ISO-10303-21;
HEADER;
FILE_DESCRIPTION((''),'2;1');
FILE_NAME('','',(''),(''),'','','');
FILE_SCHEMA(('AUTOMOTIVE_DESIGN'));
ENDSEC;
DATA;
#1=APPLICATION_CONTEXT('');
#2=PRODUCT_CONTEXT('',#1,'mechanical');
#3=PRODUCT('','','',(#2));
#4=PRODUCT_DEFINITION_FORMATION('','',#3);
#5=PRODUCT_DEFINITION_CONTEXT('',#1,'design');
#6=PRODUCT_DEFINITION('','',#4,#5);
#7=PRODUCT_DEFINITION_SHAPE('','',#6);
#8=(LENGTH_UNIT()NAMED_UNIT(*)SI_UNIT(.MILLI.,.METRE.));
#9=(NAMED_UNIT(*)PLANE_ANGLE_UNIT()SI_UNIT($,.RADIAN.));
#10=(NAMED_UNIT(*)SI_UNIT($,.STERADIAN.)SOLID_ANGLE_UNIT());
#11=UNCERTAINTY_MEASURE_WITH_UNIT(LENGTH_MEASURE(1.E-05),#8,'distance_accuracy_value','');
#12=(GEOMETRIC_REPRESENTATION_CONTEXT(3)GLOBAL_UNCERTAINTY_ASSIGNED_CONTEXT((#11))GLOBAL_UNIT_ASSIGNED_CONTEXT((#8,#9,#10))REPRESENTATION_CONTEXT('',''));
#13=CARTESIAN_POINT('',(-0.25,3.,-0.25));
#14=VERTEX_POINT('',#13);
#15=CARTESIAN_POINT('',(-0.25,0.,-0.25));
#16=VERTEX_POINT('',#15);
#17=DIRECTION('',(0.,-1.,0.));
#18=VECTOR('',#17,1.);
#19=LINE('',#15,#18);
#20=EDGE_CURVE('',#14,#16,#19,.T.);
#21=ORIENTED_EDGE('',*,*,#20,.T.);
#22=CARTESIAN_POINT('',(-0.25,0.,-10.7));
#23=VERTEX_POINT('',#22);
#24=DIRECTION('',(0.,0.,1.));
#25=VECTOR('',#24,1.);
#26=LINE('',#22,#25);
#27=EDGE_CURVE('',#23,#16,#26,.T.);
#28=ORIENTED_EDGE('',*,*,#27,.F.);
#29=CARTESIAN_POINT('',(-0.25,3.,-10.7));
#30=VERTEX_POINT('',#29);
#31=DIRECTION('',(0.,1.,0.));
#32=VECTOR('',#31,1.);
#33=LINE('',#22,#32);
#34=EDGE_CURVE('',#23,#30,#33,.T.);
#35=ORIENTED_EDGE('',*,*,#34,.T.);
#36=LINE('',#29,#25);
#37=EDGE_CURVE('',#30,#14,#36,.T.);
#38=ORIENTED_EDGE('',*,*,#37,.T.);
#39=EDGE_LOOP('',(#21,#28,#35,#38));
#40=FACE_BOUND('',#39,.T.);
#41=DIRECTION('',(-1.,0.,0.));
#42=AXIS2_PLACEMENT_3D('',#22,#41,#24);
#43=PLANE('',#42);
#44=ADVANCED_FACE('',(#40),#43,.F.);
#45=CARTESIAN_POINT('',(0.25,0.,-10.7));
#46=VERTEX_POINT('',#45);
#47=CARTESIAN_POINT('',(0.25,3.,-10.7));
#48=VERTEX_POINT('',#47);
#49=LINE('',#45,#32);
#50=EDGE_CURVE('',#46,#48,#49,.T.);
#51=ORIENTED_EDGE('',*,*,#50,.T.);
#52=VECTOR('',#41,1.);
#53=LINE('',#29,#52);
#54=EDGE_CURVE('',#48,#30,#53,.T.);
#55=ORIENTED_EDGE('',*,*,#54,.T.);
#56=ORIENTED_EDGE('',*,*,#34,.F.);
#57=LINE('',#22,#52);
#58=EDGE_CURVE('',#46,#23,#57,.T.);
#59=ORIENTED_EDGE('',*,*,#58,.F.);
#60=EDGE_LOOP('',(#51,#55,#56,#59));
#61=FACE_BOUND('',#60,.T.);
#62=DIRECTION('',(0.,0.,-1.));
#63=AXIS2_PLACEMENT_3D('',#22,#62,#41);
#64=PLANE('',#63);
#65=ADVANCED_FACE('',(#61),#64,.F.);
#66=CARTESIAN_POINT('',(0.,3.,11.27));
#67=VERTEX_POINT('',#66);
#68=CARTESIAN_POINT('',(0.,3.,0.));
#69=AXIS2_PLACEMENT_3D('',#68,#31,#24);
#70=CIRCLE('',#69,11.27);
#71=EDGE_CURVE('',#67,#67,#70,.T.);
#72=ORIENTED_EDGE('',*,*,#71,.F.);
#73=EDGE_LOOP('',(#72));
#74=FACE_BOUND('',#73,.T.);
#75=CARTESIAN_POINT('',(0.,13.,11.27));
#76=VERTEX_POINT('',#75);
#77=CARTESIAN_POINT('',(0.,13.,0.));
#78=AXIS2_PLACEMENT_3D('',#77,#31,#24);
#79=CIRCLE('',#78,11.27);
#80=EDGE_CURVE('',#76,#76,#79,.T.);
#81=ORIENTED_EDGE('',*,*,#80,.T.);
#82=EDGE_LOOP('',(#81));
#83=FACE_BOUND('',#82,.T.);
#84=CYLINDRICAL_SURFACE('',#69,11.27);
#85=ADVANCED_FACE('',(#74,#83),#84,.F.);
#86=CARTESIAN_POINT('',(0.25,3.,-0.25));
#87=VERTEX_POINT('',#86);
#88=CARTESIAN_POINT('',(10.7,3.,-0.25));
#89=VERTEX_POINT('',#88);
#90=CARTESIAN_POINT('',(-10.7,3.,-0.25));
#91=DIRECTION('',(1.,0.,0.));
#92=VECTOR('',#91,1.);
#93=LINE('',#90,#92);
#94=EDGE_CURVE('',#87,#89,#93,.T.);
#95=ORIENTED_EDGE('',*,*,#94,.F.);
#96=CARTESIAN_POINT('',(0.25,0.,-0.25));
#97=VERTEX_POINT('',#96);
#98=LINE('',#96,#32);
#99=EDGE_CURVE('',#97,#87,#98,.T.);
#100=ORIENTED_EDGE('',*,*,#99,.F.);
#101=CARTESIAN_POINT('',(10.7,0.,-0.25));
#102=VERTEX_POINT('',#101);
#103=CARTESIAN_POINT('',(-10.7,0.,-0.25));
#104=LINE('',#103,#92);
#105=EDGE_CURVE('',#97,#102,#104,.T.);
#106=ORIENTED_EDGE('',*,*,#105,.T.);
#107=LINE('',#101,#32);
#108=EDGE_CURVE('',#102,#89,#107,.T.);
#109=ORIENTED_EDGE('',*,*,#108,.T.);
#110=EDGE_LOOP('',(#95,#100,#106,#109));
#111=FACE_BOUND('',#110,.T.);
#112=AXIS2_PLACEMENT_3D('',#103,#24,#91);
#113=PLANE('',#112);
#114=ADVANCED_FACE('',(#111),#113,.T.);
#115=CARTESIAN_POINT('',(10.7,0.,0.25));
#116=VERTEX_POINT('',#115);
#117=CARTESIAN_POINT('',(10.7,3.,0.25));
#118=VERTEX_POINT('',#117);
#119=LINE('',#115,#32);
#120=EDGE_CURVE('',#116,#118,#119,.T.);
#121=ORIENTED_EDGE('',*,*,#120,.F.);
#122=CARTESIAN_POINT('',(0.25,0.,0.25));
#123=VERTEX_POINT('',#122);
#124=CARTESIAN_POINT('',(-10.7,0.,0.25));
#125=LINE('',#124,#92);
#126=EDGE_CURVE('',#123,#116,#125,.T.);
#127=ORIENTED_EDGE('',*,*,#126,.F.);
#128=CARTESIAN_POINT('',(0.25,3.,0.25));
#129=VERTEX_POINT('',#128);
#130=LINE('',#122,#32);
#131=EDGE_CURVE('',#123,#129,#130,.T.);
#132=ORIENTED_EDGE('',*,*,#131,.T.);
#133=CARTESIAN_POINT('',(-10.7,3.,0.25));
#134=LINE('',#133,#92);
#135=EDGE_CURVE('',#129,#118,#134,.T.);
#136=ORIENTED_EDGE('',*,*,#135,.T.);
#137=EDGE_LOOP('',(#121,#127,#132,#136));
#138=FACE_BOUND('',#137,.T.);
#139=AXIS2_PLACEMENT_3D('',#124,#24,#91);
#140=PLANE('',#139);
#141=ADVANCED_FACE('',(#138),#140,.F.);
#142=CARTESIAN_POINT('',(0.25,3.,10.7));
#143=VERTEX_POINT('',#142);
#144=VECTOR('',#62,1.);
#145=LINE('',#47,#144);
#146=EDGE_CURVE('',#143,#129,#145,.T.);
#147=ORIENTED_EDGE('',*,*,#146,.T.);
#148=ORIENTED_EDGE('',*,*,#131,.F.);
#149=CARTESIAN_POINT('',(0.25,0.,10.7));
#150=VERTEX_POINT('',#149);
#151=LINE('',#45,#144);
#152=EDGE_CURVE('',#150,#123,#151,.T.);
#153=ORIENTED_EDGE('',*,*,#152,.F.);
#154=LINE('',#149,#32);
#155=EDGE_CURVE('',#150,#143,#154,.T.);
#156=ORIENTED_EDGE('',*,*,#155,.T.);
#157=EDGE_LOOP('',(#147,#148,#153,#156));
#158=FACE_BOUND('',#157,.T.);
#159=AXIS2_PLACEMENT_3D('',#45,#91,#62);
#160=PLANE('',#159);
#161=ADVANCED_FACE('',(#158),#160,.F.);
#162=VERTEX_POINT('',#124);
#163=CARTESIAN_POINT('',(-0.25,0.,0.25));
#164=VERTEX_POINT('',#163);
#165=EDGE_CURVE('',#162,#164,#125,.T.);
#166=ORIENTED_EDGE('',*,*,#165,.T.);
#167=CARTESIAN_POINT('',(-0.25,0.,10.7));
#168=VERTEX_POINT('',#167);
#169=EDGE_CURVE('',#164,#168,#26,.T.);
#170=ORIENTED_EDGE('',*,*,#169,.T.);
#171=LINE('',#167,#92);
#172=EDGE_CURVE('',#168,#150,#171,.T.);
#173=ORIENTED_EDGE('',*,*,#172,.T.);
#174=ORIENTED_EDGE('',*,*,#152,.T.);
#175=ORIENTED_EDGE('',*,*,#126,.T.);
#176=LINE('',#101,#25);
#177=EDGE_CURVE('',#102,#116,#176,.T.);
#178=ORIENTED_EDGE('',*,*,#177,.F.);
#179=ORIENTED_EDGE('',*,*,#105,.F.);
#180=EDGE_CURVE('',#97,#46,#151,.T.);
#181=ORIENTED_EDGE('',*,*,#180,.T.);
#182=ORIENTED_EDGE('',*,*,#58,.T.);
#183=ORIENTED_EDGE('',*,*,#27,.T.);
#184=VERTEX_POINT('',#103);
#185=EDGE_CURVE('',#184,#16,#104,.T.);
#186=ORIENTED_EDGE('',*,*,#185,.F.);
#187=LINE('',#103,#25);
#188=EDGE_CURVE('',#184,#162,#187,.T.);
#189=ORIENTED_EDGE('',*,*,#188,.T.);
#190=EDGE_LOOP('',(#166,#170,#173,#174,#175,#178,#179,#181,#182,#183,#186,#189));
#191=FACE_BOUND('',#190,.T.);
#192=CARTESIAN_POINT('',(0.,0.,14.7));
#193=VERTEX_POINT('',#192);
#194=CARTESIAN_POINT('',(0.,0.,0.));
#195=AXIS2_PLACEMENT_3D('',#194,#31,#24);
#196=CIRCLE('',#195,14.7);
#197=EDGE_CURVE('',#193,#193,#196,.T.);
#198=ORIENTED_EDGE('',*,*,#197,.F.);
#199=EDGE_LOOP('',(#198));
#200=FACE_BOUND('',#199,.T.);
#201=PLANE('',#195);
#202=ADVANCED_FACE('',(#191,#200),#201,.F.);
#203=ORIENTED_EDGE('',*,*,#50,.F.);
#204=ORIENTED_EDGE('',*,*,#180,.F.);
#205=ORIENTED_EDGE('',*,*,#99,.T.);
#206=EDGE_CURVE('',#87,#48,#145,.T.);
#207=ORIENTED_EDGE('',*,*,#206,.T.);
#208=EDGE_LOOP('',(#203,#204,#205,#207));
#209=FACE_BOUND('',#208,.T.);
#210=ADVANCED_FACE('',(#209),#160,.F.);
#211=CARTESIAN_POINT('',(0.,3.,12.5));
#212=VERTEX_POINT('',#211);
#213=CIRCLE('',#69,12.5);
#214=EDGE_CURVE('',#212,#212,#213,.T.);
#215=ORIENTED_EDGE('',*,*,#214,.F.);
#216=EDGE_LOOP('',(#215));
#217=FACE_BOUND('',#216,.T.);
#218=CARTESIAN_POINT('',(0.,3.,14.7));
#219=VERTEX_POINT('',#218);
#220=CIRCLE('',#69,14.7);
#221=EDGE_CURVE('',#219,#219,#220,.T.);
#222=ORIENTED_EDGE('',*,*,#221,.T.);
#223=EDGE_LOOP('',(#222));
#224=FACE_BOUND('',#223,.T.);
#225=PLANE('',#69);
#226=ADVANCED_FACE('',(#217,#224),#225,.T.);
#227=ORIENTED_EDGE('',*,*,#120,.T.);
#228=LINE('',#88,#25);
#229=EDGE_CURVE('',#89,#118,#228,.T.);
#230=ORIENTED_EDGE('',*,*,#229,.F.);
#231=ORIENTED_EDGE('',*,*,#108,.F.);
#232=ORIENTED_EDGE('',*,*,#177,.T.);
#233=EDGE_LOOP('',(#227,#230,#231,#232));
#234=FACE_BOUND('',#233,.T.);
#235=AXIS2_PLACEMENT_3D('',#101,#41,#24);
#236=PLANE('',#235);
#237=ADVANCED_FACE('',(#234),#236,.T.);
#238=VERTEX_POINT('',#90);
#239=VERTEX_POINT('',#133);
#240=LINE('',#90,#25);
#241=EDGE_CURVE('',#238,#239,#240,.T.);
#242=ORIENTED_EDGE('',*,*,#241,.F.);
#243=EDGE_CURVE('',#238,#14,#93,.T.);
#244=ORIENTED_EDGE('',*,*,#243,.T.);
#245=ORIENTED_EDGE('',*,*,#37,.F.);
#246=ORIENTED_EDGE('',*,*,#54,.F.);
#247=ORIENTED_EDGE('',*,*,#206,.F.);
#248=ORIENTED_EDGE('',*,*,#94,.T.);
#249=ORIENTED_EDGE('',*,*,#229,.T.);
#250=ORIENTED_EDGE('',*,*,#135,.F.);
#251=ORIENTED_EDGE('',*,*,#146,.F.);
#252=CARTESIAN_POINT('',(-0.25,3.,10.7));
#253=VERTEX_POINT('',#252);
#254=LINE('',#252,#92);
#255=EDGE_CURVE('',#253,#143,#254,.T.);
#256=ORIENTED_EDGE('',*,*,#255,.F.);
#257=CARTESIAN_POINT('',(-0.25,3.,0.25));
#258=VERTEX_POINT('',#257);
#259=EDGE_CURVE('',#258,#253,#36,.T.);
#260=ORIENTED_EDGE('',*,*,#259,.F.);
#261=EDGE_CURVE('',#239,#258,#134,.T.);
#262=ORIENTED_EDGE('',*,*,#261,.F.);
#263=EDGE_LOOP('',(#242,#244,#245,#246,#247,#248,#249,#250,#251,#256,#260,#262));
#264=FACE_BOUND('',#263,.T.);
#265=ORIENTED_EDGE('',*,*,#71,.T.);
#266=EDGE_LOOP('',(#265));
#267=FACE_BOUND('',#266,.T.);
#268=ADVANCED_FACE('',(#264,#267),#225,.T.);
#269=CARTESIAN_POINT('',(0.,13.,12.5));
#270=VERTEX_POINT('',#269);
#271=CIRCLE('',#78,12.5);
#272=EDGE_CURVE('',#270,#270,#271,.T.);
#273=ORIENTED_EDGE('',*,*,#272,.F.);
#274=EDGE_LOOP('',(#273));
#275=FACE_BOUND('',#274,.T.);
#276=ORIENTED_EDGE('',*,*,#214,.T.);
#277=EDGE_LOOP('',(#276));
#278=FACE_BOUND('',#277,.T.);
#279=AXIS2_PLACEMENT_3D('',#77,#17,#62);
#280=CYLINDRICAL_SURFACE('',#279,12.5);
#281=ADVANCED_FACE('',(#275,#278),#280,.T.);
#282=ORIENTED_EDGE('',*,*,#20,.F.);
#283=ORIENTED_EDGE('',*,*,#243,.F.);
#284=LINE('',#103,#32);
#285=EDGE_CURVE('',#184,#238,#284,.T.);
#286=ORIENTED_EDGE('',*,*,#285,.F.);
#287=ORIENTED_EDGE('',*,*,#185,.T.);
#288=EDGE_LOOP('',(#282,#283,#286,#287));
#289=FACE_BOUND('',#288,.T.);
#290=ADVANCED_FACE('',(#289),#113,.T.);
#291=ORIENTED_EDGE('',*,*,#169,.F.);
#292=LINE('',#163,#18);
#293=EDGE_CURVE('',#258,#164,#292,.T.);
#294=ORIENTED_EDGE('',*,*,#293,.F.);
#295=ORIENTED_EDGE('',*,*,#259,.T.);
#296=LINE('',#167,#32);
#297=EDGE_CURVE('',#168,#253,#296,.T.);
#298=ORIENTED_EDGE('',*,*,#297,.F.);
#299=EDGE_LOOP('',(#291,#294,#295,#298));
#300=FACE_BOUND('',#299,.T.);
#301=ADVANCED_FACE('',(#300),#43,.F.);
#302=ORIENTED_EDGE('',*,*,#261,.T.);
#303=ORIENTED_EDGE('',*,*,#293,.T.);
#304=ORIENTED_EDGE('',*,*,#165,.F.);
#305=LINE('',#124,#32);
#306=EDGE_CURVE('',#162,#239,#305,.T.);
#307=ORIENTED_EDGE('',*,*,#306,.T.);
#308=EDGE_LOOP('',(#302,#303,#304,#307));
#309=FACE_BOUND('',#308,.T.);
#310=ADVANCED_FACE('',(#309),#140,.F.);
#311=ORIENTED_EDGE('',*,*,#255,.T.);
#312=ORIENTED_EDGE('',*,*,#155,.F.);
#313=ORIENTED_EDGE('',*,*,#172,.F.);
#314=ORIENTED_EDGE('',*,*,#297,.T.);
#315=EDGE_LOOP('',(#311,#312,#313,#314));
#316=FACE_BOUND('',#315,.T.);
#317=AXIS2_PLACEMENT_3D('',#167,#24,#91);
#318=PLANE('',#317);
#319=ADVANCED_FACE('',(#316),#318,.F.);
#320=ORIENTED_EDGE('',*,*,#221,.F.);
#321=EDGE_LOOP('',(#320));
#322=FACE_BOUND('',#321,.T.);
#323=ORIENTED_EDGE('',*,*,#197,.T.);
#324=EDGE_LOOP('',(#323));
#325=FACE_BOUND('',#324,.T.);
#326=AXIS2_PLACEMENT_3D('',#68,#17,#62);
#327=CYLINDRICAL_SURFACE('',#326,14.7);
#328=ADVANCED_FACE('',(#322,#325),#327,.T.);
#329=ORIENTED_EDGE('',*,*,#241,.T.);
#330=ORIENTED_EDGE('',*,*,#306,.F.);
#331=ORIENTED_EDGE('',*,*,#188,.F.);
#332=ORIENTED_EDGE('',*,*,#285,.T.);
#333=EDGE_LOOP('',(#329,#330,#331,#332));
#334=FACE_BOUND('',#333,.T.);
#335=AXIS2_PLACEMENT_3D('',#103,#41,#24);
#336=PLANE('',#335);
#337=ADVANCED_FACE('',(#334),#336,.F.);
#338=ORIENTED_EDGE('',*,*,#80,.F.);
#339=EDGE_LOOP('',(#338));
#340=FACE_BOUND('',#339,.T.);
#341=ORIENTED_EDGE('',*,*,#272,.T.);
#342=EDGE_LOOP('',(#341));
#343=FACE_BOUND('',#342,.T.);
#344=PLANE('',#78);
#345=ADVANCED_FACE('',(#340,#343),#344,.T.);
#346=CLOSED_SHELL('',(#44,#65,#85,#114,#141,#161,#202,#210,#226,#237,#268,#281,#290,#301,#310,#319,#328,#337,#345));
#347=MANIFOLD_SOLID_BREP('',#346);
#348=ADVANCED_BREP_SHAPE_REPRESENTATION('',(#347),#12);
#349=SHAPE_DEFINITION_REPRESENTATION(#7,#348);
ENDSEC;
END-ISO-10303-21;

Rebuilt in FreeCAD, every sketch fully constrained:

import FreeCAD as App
import Part
import Sketcher
from FreeCAD import Vector
Q = App.Units.Quantity


def add_polygon(sketch, points):
    """Adds a closed chain of lines whose ends are joined by coincident constraints."""
    first, n = sketch.GeometryCount, len(points)
    for a, b in zip(points, points[1:] + points[:1]):
        sketch.addGeometry(Part.LineSegment(App.Vector(*a, 0), App.Vector(*b, 0)), False)
    for i in range(n):
        sketch.addConstraint(Sketcher.Constraint("Coincident", first + i, 2, first + (i + 1) % n, 1))

doc = App.newDocument("Part")
body = doc.addObject("PartDesign::Body", "Body")

# Sketch on XZ plane
sketch1 = body.newObject("Sketcher::SketchObject", "Sketch")
sketch1.AttachmentSupport = (doc.getObject("XZ_Plane"), [""])
sketch1.MapMode = "FlatFace"
sketch1.addGeometry(Part.Circle(Vector(0, 0, 0), Vector(0, 0, 1), 15), False)
sketch1.addConstraint([
    Sketcher.Constraint("Coincident", 0, 3, -1, 1),
    Sketcher.Constraint("Diameter", 0, Q("29.4 mm")),
])
pad1 = body.newObject("PartDesign::Pad", "Pad")
pad1.Profile = sketch1
pad1.Length = 3
pad1.Reversed = True

# Sketch on XZ plane
sketch2 = body.newObject("Sketcher::SketchObject", "Sketch001")
sketch2.AttachmentSupport = (doc.getObject("XZ_Plane"), [""])
sketch2.MapMode = "FlatFace"
sketch2.AttachmentOffset = App.Placement(Vector(0, 0, -3), App.Rotation())
add_polygon(sketch2, [(-10.7, -0.2), (-10.7, 0.2), (10.7, 0.2), (10.7, -0.2)])  # lines 0-3
sketch2.addConstraint([
    Sketcher.Constraint("Vertical", 0),
    Sketcher.Constraint("Horizontal", 1),
    Sketcher.Constraint("Vertical", 2),
    Sketcher.Constraint("Horizontal", 3),
    Sketcher.Constraint("Symmetric", 0, 2, 2, 2, -1, 1),
    Sketcher.Constraint("DistanceX", 1, 1, 1, 2, Q("21.4 mm")),
    Sketcher.Constraint("DistanceY", 0, 1, 0, 2, Q("0.5 mm")),
])
pocket1 = body.newObject("PartDesign::Pocket", "Pocket")
pocket1.Profile = sketch2
pocket1.Length = 3
pocket1.Reversed = True

# Sketch on XZ plane
sketch3 = body.newObject("Sketcher::SketchObject", "Sketch002")
sketch3.AttachmentSupport = (doc.getObject("XZ_Plane"), [""])
sketch3.MapMode = "FlatFace"
sketch3.AttachmentOffset = App.Placement(Vector(0, 0, -3), App.Rotation())
add_polygon(sketch3, [(-0.2, -10.7), (-0.2, 10.7), (0.2, 10.7), (0.2, -10.7)])  # lines 0-3
sketch3.addConstraint([
    Sketcher.Constraint("Vertical", 0),
    Sketcher.Constraint("Horizontal", 1),
    Sketcher.Constraint("Vertical", 2),
    Sketcher.Constraint("Horizontal", 3),
    Sketcher.Constraint("Symmetric", 0, 2, 2, 2, -1, 1),
    Sketcher.Constraint("DistanceX", 1, 1, 1, 2, Q("0.5 mm")),
    Sketcher.Constraint("DistanceY", 0, 1, 0, 2, Q("21.4 mm")),
])
pocket2 = body.newObject("PartDesign::Pocket", "Pocket001")
pocket2.Profile = sketch3
pocket2.Length = 3
pocket2.Reversed = True

# Sketch on XZ plane
sketch4 = body.newObject("Sketcher::SketchObject", "Sketch003")
sketch4.AttachmentSupport = (doc.getObject("XZ_Plane"), [""])
sketch4.MapMode = "FlatFace"
sketch4.AttachmentOffset = App.Placement(Vector(0, 0, -3), App.Rotation())
sketch4.addGeometry(Part.Circle(Vector(0, 0, 0), Vector(0, 0, 1), 12), False)
sketch4.addConstraint([
    Sketcher.Constraint("Coincident", 0, 3, -1, 1),
    Sketcher.Constraint("Diameter", 0, Q("25 mm")),
])
pad2 = body.newObject("PartDesign::Pad", "Pad001")
pad2.Profile = sketch4
pad2.Length = 10
pad2.Reversed = True

# Sketch on XZ plane
sketch5 = body.newObject("Sketcher::SketchObject", "Sketch004")
sketch5.AttachmentSupport = (doc.getObject("XZ_Plane"), [""])
sketch5.MapMode = "FlatFace"
sketch5.AttachmentOffset = App.Placement(Vector(0, 0, -13), App.Rotation())
sketch5.addGeometry(Part.Circle(Vector(0, 0, 0), Vector(0, 0, 1), 11), False)
sketch5.addConstraint([
    Sketcher.Constraint("Coincident", 0, 3, -1, 1),
    Sketcher.Constraint("Diameter", 0, Q("22.54 mm")),
])
pocket3 = body.newObject("PartDesign::Pocket", "Pocket002")
pocket3.Profile = sketch5
pocket3.Length = 10
pocket3.Reversed = True

doc.recompute()
